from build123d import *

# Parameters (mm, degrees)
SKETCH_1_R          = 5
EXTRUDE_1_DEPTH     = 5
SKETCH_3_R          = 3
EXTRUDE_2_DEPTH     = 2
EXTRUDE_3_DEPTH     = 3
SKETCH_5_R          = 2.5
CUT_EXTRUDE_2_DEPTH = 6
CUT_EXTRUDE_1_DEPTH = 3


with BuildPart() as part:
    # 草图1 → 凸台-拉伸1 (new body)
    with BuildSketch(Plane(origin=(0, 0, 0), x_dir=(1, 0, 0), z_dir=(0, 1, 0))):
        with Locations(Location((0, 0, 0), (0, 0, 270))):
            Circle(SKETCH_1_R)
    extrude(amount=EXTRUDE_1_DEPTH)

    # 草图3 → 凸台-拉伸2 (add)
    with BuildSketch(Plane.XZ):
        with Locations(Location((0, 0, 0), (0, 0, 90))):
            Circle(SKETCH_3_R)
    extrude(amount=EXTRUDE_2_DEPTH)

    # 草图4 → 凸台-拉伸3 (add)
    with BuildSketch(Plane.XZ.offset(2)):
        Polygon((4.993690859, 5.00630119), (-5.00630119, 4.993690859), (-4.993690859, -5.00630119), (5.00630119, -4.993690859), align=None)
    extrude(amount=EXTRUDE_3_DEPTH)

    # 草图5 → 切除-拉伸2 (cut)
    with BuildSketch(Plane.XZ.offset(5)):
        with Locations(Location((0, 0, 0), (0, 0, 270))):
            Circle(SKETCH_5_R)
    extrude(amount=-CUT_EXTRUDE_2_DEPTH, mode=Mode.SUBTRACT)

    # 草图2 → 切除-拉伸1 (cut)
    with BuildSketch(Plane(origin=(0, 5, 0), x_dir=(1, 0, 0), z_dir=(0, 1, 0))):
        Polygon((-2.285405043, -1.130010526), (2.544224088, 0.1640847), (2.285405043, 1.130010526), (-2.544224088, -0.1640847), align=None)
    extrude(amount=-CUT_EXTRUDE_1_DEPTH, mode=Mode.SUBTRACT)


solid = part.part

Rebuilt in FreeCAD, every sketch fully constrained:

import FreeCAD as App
import Part
import Sketcher
Q = App.Units.Quantity


def add_polygon(sketch, points):
    """Adds a closed chain of lines whose ends are joined by coincident constraints."""
    first, n = sketch.GeometryCount, len(points)
    for a, b in zip(points, points[1:] + points[:1]):
        sketch.addGeometry(Part.LineSegment(App.Vector(*a, 0), App.Vector(*b, 0)), False)
    for i in range(n):
        sketch.addConstraint(Sketcher.Constraint("Coincident", first + i, 2, first + (i + 1) % n, 1))

doc = App.newDocument("Part")
body = doc.addObject("PartDesign::Body", "Body")

# Sketch on XZ plane
sketch1 = doc.addObject("Sketcher::SketchObject", "Sketch")
body.addObject(sketch1)
sketch1.AttachmentSupport = (doc.XZ_Plane, [""])
sketch1.MapMode = "FlatFace"
sketch1.addGeometry(Part.Circle(App.Vector(0, 0, 0), App.Vector(0, 0, 1), 5), False)
sketch1.addConstraint([
    Sketcher.Constraint("Coincident", 0, 3, -1, 1),
    Sketcher.Constraint("Diameter", 0, Q("10 mm")),
])
pad1 = doc.addObject("PartDesign::Pad", "Pad")
body.addObject(pad1)
pad1.Profile = sketch1
pad1.Length = 5
pad1.Reversed = True

# Sketch on XZ plane
sketch2 = doc.addObject("Sketcher::SketchObject", "Sketch001")
body.addObject(sketch2)
sketch2.AttachmentSupport = (doc.XZ_Plane, [""])
sketch2.MapMode = "FlatFace"
sketch2.addGeometry(Part.Circle(App.Vector(0, 0, 0), App.Vector(0, 0, 1), 3), False)
sketch2.addConstraint([
    Sketcher.Constraint("Coincident", 0, 3, -1, 1),
    Sketcher.Constraint("Diameter", 0, Q("6 mm")),
])
pad2 = doc.addObject("PartDesign::Pad", "Pad001")
body.addObject(pad2)
pad2.Profile = sketch2
pad2.Length = 2

# Sketch on XZ plane
sketch3 = doc.addObject("Sketcher::SketchObject", "Sketch002")
body.addObject(sketch3)
sketch3.AttachmentSupport = (doc.XZ_Plane, [""])
sketch3.MapMode = "FlatFace"
sketch3.AttachmentOffset = App.Placement(App.Vector(0, 0, 2), App.Rotation())
add_polygon(sketch3, [(4.993691, 5.006301), (-5.006301, 4.993691), (-4.993691, -5.006301), (5.006301, -4.993691)])  # lines 0-3
sketch3.addConstraint([
    Sketcher.Constraint("Symmetric", 0, 2, 2, 2, -1, 1),
    Sketcher.Constraint("Symmetric", 1, 2, 3, 2, -1, 1),
    Sketcher.Constraint("Perpendicular", 0, 1),
    Sketcher.Constraint("Equal", 0, 1),
    Sketcher.Constraint("Distance", 0, Q("10 mm")),
    Sketcher.Constraint("DistanceX", 0, 2, -1, 1, Q("5.006301 mm")),
])
pad3 = doc.addObject("PartDesign::Pad", "Pad002")
body.addObject(pad3)
pad3.Profile = sketch3
pad3.Length = 3

# Sketch on XZ plane
sketch4 = doc.addObject("Sketcher::SketchObject", "Sketch003")
body.addObject(sketch4)
sketch4.AttachmentSupport = (doc.XZ_Plane, [""])
sketch4.MapMode = "FlatFace"
sketch4.AttachmentOffset = App.Placement(App.Vector(0, 0, 5), App.Rotation())
sketch4.addGeometry(Part.Circle(App.Vector(0, 0, 0), App.Vector(0, 0, 1), 2.5), False)
sketch4.addConstraint([
    Sketcher.Constraint("Coincident", 0, 3, -1, 1),
    Sketcher.Constraint("Diameter", 0, Q("5 mm")),
])
pocket1 = doc.addObject("PartDesign::Pocket", "Pocket")
body.addObject(pocket1)
pocket1.Profile = sketch4
pocket1.Length = 6

# Sketch on XZ plane
sketch5 = doc.addObject("Sketcher::SketchObject", "Sketch004")
body.addObject(sketch5)
sketch5.AttachmentSupport = (doc.XZ_Plane, [""])
sketch5.MapMode = "FlatFace"
sketch5.AttachmentOffset = App.Placement(App.Vector(0, 0, -5), App.Rotation())
add_polygon(sketch5, [(-2.285405, 1.130011), (2.544224, -0.164085), (2.285405, -1.130011), (-2.544224, 0.164085)])  # lines 0-3
sketch5.addConstraint([
    Sketcher.Constraint("Symmetric", 0, 2, 2, 2, -1, 1),
    Sketcher.Constraint("Symmetric", 1, 2, 3, 2, -1, 1),
    Sketcher.Constraint("Perpendicular", 0, 1),
    Sketcher.Constraint("Angle", 0, Q("-15 deg")),
    Sketcher.Constraint("Distance", 0, Q("5 mm")),
    Sketcher.Constraint("Distance", 1, Q("1 mm")),
])
pocket2 = doc.addObject("PartDesign::Pocket", "Pocket001")
body.addObject(pocket2)
pocket2.Profile = sketch5
pocket2.Length = 3
pocket2.Reversed = True

doc.recompute()
